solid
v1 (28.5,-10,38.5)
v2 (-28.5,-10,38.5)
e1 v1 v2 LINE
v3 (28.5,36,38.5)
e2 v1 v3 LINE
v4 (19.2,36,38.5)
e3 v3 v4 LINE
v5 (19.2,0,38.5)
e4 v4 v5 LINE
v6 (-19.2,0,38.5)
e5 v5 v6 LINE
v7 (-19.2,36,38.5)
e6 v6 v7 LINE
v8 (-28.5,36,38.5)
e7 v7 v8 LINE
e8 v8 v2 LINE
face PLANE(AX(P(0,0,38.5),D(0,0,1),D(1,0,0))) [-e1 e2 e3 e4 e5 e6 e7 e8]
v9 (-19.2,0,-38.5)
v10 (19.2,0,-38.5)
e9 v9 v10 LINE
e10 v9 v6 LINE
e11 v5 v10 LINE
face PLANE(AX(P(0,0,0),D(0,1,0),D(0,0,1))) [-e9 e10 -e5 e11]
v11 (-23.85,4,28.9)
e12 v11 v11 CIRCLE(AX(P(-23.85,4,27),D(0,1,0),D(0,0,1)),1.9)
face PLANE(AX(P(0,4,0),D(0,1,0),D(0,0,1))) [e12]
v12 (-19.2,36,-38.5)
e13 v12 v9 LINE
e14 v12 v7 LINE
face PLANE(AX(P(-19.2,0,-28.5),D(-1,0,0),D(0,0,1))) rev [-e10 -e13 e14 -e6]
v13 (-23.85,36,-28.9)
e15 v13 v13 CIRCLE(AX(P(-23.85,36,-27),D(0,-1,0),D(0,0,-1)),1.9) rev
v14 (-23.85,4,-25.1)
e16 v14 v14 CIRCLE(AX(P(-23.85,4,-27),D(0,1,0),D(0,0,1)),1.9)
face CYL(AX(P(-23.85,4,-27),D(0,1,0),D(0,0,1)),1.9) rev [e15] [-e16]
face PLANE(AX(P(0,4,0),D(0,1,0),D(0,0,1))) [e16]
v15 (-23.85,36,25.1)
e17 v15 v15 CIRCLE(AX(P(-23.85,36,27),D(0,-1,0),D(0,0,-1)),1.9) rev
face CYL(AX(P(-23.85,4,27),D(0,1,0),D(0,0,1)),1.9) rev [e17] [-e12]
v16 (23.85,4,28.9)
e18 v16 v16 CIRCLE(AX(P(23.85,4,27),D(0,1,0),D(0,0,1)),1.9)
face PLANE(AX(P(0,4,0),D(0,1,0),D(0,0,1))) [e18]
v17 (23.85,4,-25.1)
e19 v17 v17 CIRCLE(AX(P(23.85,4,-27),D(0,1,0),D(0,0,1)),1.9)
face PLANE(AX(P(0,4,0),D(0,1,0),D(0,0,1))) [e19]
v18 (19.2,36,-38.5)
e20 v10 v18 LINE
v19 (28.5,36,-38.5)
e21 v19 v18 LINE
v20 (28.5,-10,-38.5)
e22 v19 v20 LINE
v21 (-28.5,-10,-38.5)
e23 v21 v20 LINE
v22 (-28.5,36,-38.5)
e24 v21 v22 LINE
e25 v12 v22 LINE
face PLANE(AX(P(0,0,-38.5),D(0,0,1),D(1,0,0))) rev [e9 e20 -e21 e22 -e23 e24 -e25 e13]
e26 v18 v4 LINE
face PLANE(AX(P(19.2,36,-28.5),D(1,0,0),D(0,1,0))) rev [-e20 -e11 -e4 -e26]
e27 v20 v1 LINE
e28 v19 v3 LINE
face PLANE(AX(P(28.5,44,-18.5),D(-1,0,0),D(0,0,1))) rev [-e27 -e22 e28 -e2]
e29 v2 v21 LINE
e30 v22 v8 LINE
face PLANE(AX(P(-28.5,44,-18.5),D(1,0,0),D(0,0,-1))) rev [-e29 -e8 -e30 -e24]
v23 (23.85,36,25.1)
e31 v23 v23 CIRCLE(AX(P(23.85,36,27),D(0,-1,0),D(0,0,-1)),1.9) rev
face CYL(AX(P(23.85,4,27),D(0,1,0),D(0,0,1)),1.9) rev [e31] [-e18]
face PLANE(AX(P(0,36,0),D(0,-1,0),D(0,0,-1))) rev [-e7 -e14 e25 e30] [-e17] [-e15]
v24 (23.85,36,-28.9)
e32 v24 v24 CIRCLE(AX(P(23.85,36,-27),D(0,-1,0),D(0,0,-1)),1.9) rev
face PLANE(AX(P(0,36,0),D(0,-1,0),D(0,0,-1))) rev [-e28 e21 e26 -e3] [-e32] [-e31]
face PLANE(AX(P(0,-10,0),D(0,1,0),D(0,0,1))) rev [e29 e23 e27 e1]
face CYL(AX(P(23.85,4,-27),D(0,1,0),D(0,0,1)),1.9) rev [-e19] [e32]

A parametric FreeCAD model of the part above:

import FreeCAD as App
import Part
import Sketcher

V = App.Vector

doc = App.newDocument("Part")
params = doc.addObject("Spreadsheet::Sheet", "Params")
for row, (alias, value) in enumerate([
    ("sketch1_width", "57 mm"),
    ("sketch1_height", "37 mm"),
    ("pad1_length", "44 mm"),
    ("sketch2_height", "36 mm"),
    ("sketch2_width", "38.4 mm"),
    ("pocket1_length", "47 mm"),
    ("sketch3_width", "57 mm"),
    ("sketch3_height", "36 mm"),
    ("sketch3_height2", "44 mm"),
    ("sketch3_width2", "38.4 mm"),
    ("pad2_length", "20 mm"),
    ("sketch4_width", "57 mm"),
    ("sketch4_height", "36 mm"),
    ("sketch4_height2", "44 mm"),
    ("sketch4_width2", "9.3 mm"),
    ("pad3_length", "20 mm"),
    ("sketch5_width", "53 mm"),
    ("sketch5_height", "31 mm"),
    ("pocket2_length", "8 mm"),
    ("sketch6_diameter", "3.8 mm"),
    ("pocket3_length", "40 mm"),
    ("sketch7_width", "57 mm"),
    ("sketch7_height", "77 mm"),
    ("pad4_length", "10 mm"),
    ("sketch8_width", "8 mm"),
    ("sketch8_height", "77 mm"),
    ("pocket4_length", "100 mm"),
], start=1):
    params.set(f"A{row}", alias)
    params.set(f"B{row}", "=" + value)
    params.setAlias(f"B{row}", alias)

body = doc.addObject("PartDesign::Body", "Body")

# Sketch on XZ plane
sketch1 = doc.addObject("Sketcher::SketchObject", "Sketch")
body.addObject(sketch1)
sketch1.AttachmentSupport = (doc.XZ_Plane, [""])
sketch1.MapMode = "FlatFace"
sketch1.addGeometry(Part.LineSegment(V(-28, -18, 0), V(-28, 18, 0)), False)
sketch1.addGeometry(Part.LineSegment(V(-28, 18, 0), V(28, 18, 0)), False)
sketch1.addGeometry(Part.LineSegment(V(28, 18, 0), V(28, -18, 0)), False)
sketch1.addGeometry(Part.LineSegment(V(28, -18, 0), V(-28, -18, 0)), False)
sketch1.addConstraint(Sketcher.Constraint("Coincident", 0, 2, 1, 1))
sketch1.addConstraint(Sketcher.Constraint("Coincident", 1, 2, 2, 1))
sketch1.addConstraint(Sketcher.Constraint("Coincident", 2, 2, 3, 1))
sketch1.addConstraint(Sketcher.Constraint("Coincident", 3, 2, 0, 1))
sketch1.addConstraint(Sketcher.Constraint("Vertical", 0))
sketch1.addConstraint(Sketcher.Constraint("Horizontal", 1))
sketch1.addConstraint(Sketcher.Constraint("Vertical", 2))
sketch1.addConstraint(Sketcher.Constraint("Horizontal", 3))
sketch1.addConstraint(Sketcher.Constraint("Symmetric", 0, 2, 2, 2, -1, 1))
sketch1.addConstraint(Sketcher.Constraint("DistanceX", 1, 1, 1, 2, 57.0))
sketch1.addConstraint(Sketcher.Constraint("DistanceY", 0, 1, 0, 2, 37.0))
sketch1.setExpression("Constraints[9]", "Params.sketch1_width")
sketch1.setExpression("Constraints[10]", "Params.sketch1_height")
pad1 = doc.addObject("PartDesign::Pad", "Pad")
body.addObject(pad1)
pad1.Profile = sketch1
pad1.setExpression("Length", "Params.pad1_length")
pad1.Reversed = True

# Sketch on XY plane
sketch2 = doc.addObject("Sketcher::SketchObject", "Sketch001")
body.addObject(sketch2)
sketch2.AttachmentSupport = (doc.XY_Plane, [""])
sketch2.MapMode = "FlatFace"
sketch2.AttachmentOffset = App.Placement(V(0, 0, 18.5), App.Rotation())
sketch2.addGeometry(Part.LineSegment(V(-19, 36, 0), V(-19, 0, 0)), False)
sketch2.addGeometry(Part.LineSegment(V(-19, 0, 0), V(19, 0, 0)), False)
sketch2.addGeometry(Part.LineSegment(V(19, 0, 0), V(19, 36, 0)), False)
sketch2.addGeometry(Part.LineSegment(V(19, 36, 0), V(-19, 36, 0)), False)
sketch2.addConstraint(Sketcher.Constraint("Coincident", 0, 2, 1, 1))
sketch2.addConstraint(Sketcher.Constraint("Coincident", 1, 2, 2, 1))
sketch2.addConstraint(Sketcher.Constraint("Coincident", 2, 2, 3, 1))
sketch2.addConstraint(Sketcher.Constraint("Coincident", 3, 2, 0, 1))
sketch2.addConstraint(Sketcher.Constraint("Vertical", 0))
sketch2.addConstraint(Sketcher.Constraint("Horizontal", 1))
sketch2.addConstraint(Sketcher.Constraint("Vertical", 2))
sketch2.addConstraint(Sketcher.Constraint("Horizontal", 3))
sketch2.addConstraint(Sketcher.Constraint("Symmetric", 0, 2, 1, 2, -1, 1))
sketch2.addConstraint(Sketcher.Constraint("DistanceY", 0, 2, 0, 1, 36.0))
sketch2.addConstraint(Sketcher.Constraint("DistanceX", 1, 1, 1, 2, 38.4))
sketch2.setExpression("Constraints[9]", "Params.sketch2_height")
sketch2.setExpression("Constraints[10]", "Params.sketch2_width")
pocket1 = doc.addObject("PartDesign::Pocket", "Pocket")
body.addObject(pocket1)
pocket1.Profile = sketch2
pocket1.setExpression("Length", "Params.pocket1_length")

# Sketch on XY plane
sketch3 = doc.addObject("Sketcher::SketchObject", "Sketch002")
body.addObject(sketch3)
sketch3.AttachmentSupport = (doc.XY_Plane, [""])
sketch3.MapMode = "FlatFace"
sketch3.AttachmentOffset = App.Placement(V(0, 0, -18.5), App.Rotation())
sketch3.addGeometry(Part.LineSegment(V(19, 36, 0), V(-19, 36, 0)), False)
sketch3.addGeometry(Part.LineSegment(V(-19, 36, 0), V(-19, 0, 0)), False)
sketch3.addGeometry(Part.LineSegment(V(-19, 0, 0), V(-28, 0, 0)), False)
sketch3.addGeometry(Part.LineSegment(V(-28, 0, 0), V(-28, 44, 0)), False)
sketch3.addGeometry(Part.LineSegment(V(-28, 44, 0), V(28, 44, 0)), False)
sketch3.addGeometry(Part.LineSegment(V(28, 44, 0), V(28, 0, 0)), False)
sketch3.addGeometry(Part.LineSegment(V(28, 0, 0), V(19, 0, 0)), False)
sketch3.addGeometry(Part.LineSegment(V(19, 0, 0), V(19, 36, 0)), False)
sketch3.addConstraint(Sketcher.Constraint("Coincident", 0, 2, 1, 1))
sketch3.addConstraint(Sketcher.Constraint("Coincident", 1, 2, 2, 1))
sketch3.addConstraint(Sketcher.Constraint("Coincident", 2, 2, 3, 1))
sketch3.addConstraint(Sketcher.Constraint("Coincident", 3, 2, 4, 1))
sketch3.addConstraint(Sketcher.Constraint("Coincident", 4, 2, 5, 1))
sketch3.addConstraint(Sketcher.Constraint("Coincident", 5, 2, 6, 1))
sketch3.addConstraint(Sketcher.Constraint("Coincident", 6, 2, 7, 1))
sketch3.addConstraint(Sketcher.Constraint("Coincident", 7, 2, 0, 1))
sketch3.addConstraint(Sketcher.Constraint("Horizontal", 0))
sketch3.addConstraint(Sketcher.Constraint("Vertical", 1))
sketch3.addConstraint(Sketcher.Constraint("Horizontal", 2))
sketch3.addConstraint(Sketcher.Constraint("Vertical", 3))
sketch3.addConstraint(Sketcher.Constraint("Horizontal", 4))
sketch3.addConstraint(Sketcher.Constraint("Vertical", 5))
sketch3.addConstraint(Sketcher.Constraint("Horizontal", 6))
sketch3.addConstraint(Sketcher.Constraint("Vertical", 7))
sketch3.addConstraint(Sketcher.Constraint("Symmetric", 2, 2, 5, 2, -1, 1))
sketch3.addConstraint(Sketcher.Constraint("Symmetric", 1, 2, 6, 2, -2))
sketch3.addConstraint(Sketcher.Constraint("DistanceX", 4, 1, 4, 2, 57.0))
sketch3.addConstraint(Sketcher.Constraint("DistanceY", 1, 2, 1, 1, 36.0))
sketch3.addConstraint(Sketcher.Constraint("DistanceY", 3, 1, 3, 2, 44.0))
sketch3.addConstraint(Sketcher.Constraint("DistanceX", 0, 2, 0, 1, 38.4))
sketch3.setExpression("Constraints[18]", "Params.sketch3_width")
sketch3.setExpression("Constraints[19]", "Params.sketch3_height")
sketch3.setExpression("Constraints[20]", "Params.sketch3_height2")
sketch3.setExpression("Constraints[21]", "Params.sketch3_width2")
pad2 = doc.addObject("PartDesign::Pad", "Pad001")
body.addObject(pad2)
pad2.Profile = sketch3
pad2.setExpression("Length", "Params.pad2_length")
pad2.Reversed = True

# Sketch on XY plane
sketch4 = doc.addObject("Sketcher::SketchObject", "Sketch003")
body.addObject(sketch4)
sketch4.AttachmentSupport = (doc.XY_Plane, [""])
sketch4.MapMode = "FlatFace"
sketch4.AttachmentOffset = App.Placement(V(0, 0, 18.5), App.Rotation())
sketch4.addGeometry(Part.LineSegment(V(-28, 0, 0), V(-19, 0, 0)), False)
sketch4.addGeometry(Part.LineSegment(V(-19, 0, 0), V(-19, 36, 0)), False)
sketch4.addGeometry(Part.LineSegment(V(-19, 36, 0), V(19, 36, 0)), False)
sketch4.addGeometry(Part.LineSegment(V(19, 36, 0), V(19, 0, 0)), False)
sketch4.addGeometry(Part.LineSegment(V(19, 0, 0), V(28, 0, 0)), False)
sketch4.addGeometry(Part.LineSegment(V(28, 0, 0), V(28, 44, 0)), False)
sketch4.addGeometry(Part.LineSegment(V(28, 44, 0), V(-28, 44, 0)), False)
sketch4.addGeometry(Part.LineSegment(V(-28, 44, 0), V(-28, 0, 0)), False)
sketch4.addConstraint(Sketcher.Constraint("Coincident", 0, 2, 1, 1))
sketch4.addConstraint(Sketcher.Constraint("Coincident", 1, 2, 2, 1))
sketch4.addConstraint(Sketcher.Constraint("Coincident", 2, 2, 3, 1))
sketch4.addConstraint(Sketcher.Constraint("Coincident", 3, 2, 4, 1))
sketch4.addConstraint(Sketcher.Constraint("Coincident", 4, 2, 5, 1))
sketch4.addConstraint(Sketcher.Constraint("Coincident", 5, 2, 6, 1))
sketch4.addConstraint(Sketcher.Constraint("Coincident", 6, 2, 7, 1))
sketch4.addConstraint(Sketcher.Constraint("Coincident", 7, 2, 0, 1))
sketch4.addConstraint(Sketcher.Constraint("Horizontal", 0))
sketch4.addConstraint(Sketcher.Constraint("Vertical", 1))
sketch4.addConstraint(Sketcher.Constraint("Horizontal", 2))
sketch4.addConstraint(Sketcher.Constraint("Vertical", 3))
sketch4.addConstraint(Sketcher.Constraint("Horizontal", 4))
sketch4.addConstraint(Sketcher.Constraint("Vertical", 5))
sketch4.addConstraint(Sketcher.Constraint("Horizontal", 6))
sketch4.addConstraint(Sketcher.Constraint("Vertical", 7))
sketch4.addConstraint(Sketcher.Constraint("Symmetric", 0, 2, 3, 2, -1, 1))
sketch4.addConstraint(Sketcher.Constraint("Symmetric", 4, 2, 7, 2, -2))
sketch4.addConstraint(Sketcher.Constraint("DistanceX", 6, 2, 6, 1, 57.0))
sketch4.addConstraint(Sketcher.Constraint("DistanceY", 1, 1, 1, 2, 36.0))
sketch4.addConstraint(Sketcher.Constraint("DistanceY", 5, 1, 5, 2, 44.0))
sketch4.addConstraint(Sketcher.Constraint("DistanceX", 0, 1, 0, 2, 9.3))
sketch4.setExpression("Constraints[18]", "Params.sketch4_width")
sketch4.setExpression("Constraints[19]", "Params.sketch4_height")
sketch4.setExpression("Constraints[20]", "Params.sketch4_height2")
sketch4.setExpression("Constraints[21]", "Params.sketch4_width2")
pad3 = doc.addObject("PartDesign::Pad", "Pad002")
body.addObject(pad3)
pad3.Profile = sketch4
pad3.setExpression("Length", "Params.pad3_length")

# Sketch on XZ plane
sketch5 = doc.addObject("Sketcher::SketchObject", "Sketch004")
body.addObject(sketch5)
sketch5.AttachmentSupport = (doc.XZ_Plane, [""])
sketch5.MapMode = "FlatFace"
sketch5.AttachmentOffset = App.Placement(V(0, 0, -44), App.Rotation())
sketch5.addGeometry(Part.LineSegment(V(-28, -16, 0), V(-28, 16, 0)), False)
sketch5.addGeometry(Part.LineSegment(V(-28, 16, 0), V(24, 16, 0)), False)
sketch5.addGeometry(Part.LineSegment(V(24, 16, 0), V(24, -16, 0)), False)
sketch5.addGeometry(Part.LineSegment(V(24, -16, 0), V(-28, -16, 0)), False)
sketch5.addConstraint(Sketcher.Constraint("Coincident", 0, 2, 1, 1))
sketch5.addConstraint(Sketcher.Constraint("Coincident", 1, 2, 2, 1))
sketch5.addConstraint(Sketcher.Constraint("Coincident", 2, 2, 3, 1))
sketch5.addConstraint(Sketcher.Constraint("Coincident", 3, 2, 0, 1))
sketch5.addConstraint(Sketcher.Constraint("Vertical", 0))
sketch5.addConstraint(Sketcher.Constraint("Horizontal", 1))
sketch5.addConstraint(Sketcher.Constraint("Vertical", 2))
sketch5.addConstraint(Sketcher.Constraint("Horizontal", 3))
sketch5.addConstraint(Sketcher.Constraint("DistanceX", 1, 1, 1, 2, 53.0))
sketch5.addConstraint(Sketcher.Constraint("DistanceY", 0, 1, 0, 2, 31.0))
sketch5.addConstraint(Sketcher.Constraint("DistanceX", 0, 2, -1, 1, 28.5))
sketch5.addConstraint(Sketcher.Constraint("DistanceY", -1, 1, 0, 2, 15.5))
sketch5.setExpression("Constraints[8]", "Params.sketch5_width")
sketch5.setExpression("Constraints[9]", "Params.sketch5_height")
pocket2 = doc.addObject("PartDesign::Pocket", "Pocket001")
body.addObject(pocket2)
pocket2.Profile = sketch5
pocket2.setExpression("Length", "Params.pocket2_length")
pocket2.Reversed = True

# Sketch on XZ plane
sketch6 = doc.addObject("Sketcher::SketchObject", "Sketch005")
body.addObject(sketch6)
sketch6.AttachmentSupport = (doc.XZ_Plane, [""])
sketch6.MapMode = "FlatFace"
sketch6.AttachmentOffset = App.Placement(V(0, 0, -44), App.Rotation())
sketch6.addGeometry(Part.Circle(V(23.9, 27, 0), V(0, 0, 1), 1.9), False)
sketch6.addGeometry(Part.Circle(V(-23.9, 27, 0), V(0, 0, 1), 1.9), False)
sketch6.addGeometry(Part.Circle(V(-23.9, -27, 0), V(0, 0, 1), 1.9), False)
sketch6.addGeometry(Part.Circle(V(23.9, -27, 0), V(0, 0, 1), 1.9), False)
sketch6.addConstraint(Sketcher.Constraint("Equal", 0, 1))
sketch6.addConstraint(Sketcher.Constraint("Equal", 1, 2))
sketch6.addConstraint(Sketcher.Constraint("Equal", 2, 3))
sketch6.addConstraint(Sketcher.Constraint("Symmetric", 0, 3, 2, 3, -1, 1))
sketch6.addConstraint(Sketcher.Constraint("Symmetric", 1, 3, 3, 3, -1, 1))
sketch6.addConstraint(Sketcher.Constraint("Symmetric", 0, 3, 1, 3, -2))
sketch6.addConstraint(Sketcher.Constraint("Diameter", 0, 3.8))
sketch6.addConstraint(Sketcher.Constraint("DistanceY", -1, 1, 0, 3, 27.0))
sketch6.addConstraint(Sketcher.Constraint("DistanceX", 1, 3, 0, 3, 47.7))
sketch6.setExpression("Constraints[6]", "Params.sketch6_diameter")
pocket3 = doc.addObject("PartDesign::Pocket", "Pocket002")
body.addObject(pocket3)
pocket3.Profile = sketch6
pocket3.setExpression("Length", "Params.pocket3_length")
pocket3.Reversed = True

# Sketch on XZ plane
sketch7 = doc.addObject("Sketcher::SketchObject", "Sketch006")
body.addObject(sketch7)
sketch7.AttachmentSupport = (doc.XZ_Plane, [""])
sketch7.MapMode = "FlatFace"
sketch7.addGeometry(Part.LineSegment(V(-28, 38, 0), V(-28, -38, 0)), False)
sketch7.addGeometry(Part.LineSegment(V(-28, -38, 0), V(28, -38, 0)), False)
sketch7.addGeometry(Part.LineSegment(V(28, -38, 0), V(28, 38, 0)), False)
sketch7.addGeometry(Part.LineSegment(V(28, 38, 0), V(-28, 38, 0)), False)
sketch7.addConstraint(Sketcher.Constraint("Coincident", 0, 2, 1, 1))
sketch7.addConstraint(Sketcher.Constraint("Coincident", 1, 2, 2, 1))
sketch7.addConstraint(Sketcher.Constraint("Coincident", 2, 2, 3, 1))
sketch7.addConstraint(Sketcher.Constraint("Coincident", 3, 2, 0, 1))
sketch7.addConstraint(Sketcher.Constraint("Vertical", 0))
sketch7.addConstraint(Sketcher.Constraint("Horizontal", 1))
sketch7.addConstraint(Sketcher.Constraint("Vertical", 2))
sketch7.addConstraint(Sketcher.Constraint("Horizontal", 3))
sketch7.addConstraint(Sketcher.Constraint("Symmetric", 0, 2, 2, 2, -1, 1))
sketch7.addConstraint(Sketcher.Constraint("DistanceX", 1, 1, 1, 2, 57.0))
sketch7.addConstraint(Sketcher.Constraint("DistanceY", 0, 2, 0, 1, 77.0))
sketch7.setExpression("Constraints[9]", "Params.sketch7_width")
sketch7.setExpression("Constraints[10]", "Params.sketch7_height")
pad4 = doc.addObject("PartDesign::Pad", "Pad003")
body.addObject(pad4)
pad4.Profile = sketch7
pad4.setExpression("Length", "Params.pad4_length")

# Sketch on YZ plane
sketch8 = doc.addObject("Sketcher::SketchObject", "Sketch007")
body.addObject(sketch8)
sketch8.AttachmentSupport = (doc.YZ_Plane, [""])
sketch8.MapMode = "FlatFace"
sketch8.AttachmentOffset = App.Placement(V(0, 0, -28.5), App.Rotation())
sketch8.addGeometry(Part.LineSegment(V(44, -38, 0), V(36, -38, 0)), False)
sketch8.addGeometry(Part.LineSegment(V(36, -38, 0), V(36, 38, 0)), False)
sketch8.addGeometry(Part.LineSegment(V(36, 38, 0), V(44, 38, 0)), False)
sketch8.addGeometry(Part.LineSegment(V(44, 38, 0), V(44, -38, 0)), False)
sketch8.addConstraint(Sketcher.Constraint("Coincident", 0, 2, 1, 1))
sketch8.addConstraint(Sketcher.Constraint("Coincident", 1, 2, 2, 1))
sketch8.addConstraint(Sketcher.Constraint("Coincident", 2, 2, 3, 1))
sketch8.addConstraint(Sketcher.Constraint("Coincident", 3, 2, 0, 1))
sketch8.addConstraint(Sketcher.Constraint("Horizontal", 0))
sketch8.addConstraint(Sketcher.Constraint("Vertical", 1))
sketch8.addConstraint(Sketcher.Constraint("Horizontal", 2))
sketch8.addConstraint(Sketcher.Constraint("Vertical", 3))
sketch8.addConstraint(Sketcher.Constraint("DistanceX", 0, 2, 0, 1, 8.0))
sketch8.addConstraint(Sketcher.Constraint("DistanceY", 1, 1, 1, 2, 77.0))
sketch8.addConstraint(Sketcher.Constraint("DistanceX", -1, 1, 0, 2, 36.0))
sketch8.addConstraint(Sketcher.Constraint("DistanceY", 0, 2, -1, 1, 38.5))
sketch8.setExpression("Constraints[8]", "Params.sketch8_width")
sketch8.setExpression("Constraints[9]", "Params.sketch8_height")
pocket4 = doc.addObject("PartDesign::Pocket", "Pocket003")
body.addObject(pocket4)
pocket4.Profile = sketch8
pocket4.setExpression("Length", "Params.pocket4_length")
pocket4.Reversed = True

doc.recompute()
